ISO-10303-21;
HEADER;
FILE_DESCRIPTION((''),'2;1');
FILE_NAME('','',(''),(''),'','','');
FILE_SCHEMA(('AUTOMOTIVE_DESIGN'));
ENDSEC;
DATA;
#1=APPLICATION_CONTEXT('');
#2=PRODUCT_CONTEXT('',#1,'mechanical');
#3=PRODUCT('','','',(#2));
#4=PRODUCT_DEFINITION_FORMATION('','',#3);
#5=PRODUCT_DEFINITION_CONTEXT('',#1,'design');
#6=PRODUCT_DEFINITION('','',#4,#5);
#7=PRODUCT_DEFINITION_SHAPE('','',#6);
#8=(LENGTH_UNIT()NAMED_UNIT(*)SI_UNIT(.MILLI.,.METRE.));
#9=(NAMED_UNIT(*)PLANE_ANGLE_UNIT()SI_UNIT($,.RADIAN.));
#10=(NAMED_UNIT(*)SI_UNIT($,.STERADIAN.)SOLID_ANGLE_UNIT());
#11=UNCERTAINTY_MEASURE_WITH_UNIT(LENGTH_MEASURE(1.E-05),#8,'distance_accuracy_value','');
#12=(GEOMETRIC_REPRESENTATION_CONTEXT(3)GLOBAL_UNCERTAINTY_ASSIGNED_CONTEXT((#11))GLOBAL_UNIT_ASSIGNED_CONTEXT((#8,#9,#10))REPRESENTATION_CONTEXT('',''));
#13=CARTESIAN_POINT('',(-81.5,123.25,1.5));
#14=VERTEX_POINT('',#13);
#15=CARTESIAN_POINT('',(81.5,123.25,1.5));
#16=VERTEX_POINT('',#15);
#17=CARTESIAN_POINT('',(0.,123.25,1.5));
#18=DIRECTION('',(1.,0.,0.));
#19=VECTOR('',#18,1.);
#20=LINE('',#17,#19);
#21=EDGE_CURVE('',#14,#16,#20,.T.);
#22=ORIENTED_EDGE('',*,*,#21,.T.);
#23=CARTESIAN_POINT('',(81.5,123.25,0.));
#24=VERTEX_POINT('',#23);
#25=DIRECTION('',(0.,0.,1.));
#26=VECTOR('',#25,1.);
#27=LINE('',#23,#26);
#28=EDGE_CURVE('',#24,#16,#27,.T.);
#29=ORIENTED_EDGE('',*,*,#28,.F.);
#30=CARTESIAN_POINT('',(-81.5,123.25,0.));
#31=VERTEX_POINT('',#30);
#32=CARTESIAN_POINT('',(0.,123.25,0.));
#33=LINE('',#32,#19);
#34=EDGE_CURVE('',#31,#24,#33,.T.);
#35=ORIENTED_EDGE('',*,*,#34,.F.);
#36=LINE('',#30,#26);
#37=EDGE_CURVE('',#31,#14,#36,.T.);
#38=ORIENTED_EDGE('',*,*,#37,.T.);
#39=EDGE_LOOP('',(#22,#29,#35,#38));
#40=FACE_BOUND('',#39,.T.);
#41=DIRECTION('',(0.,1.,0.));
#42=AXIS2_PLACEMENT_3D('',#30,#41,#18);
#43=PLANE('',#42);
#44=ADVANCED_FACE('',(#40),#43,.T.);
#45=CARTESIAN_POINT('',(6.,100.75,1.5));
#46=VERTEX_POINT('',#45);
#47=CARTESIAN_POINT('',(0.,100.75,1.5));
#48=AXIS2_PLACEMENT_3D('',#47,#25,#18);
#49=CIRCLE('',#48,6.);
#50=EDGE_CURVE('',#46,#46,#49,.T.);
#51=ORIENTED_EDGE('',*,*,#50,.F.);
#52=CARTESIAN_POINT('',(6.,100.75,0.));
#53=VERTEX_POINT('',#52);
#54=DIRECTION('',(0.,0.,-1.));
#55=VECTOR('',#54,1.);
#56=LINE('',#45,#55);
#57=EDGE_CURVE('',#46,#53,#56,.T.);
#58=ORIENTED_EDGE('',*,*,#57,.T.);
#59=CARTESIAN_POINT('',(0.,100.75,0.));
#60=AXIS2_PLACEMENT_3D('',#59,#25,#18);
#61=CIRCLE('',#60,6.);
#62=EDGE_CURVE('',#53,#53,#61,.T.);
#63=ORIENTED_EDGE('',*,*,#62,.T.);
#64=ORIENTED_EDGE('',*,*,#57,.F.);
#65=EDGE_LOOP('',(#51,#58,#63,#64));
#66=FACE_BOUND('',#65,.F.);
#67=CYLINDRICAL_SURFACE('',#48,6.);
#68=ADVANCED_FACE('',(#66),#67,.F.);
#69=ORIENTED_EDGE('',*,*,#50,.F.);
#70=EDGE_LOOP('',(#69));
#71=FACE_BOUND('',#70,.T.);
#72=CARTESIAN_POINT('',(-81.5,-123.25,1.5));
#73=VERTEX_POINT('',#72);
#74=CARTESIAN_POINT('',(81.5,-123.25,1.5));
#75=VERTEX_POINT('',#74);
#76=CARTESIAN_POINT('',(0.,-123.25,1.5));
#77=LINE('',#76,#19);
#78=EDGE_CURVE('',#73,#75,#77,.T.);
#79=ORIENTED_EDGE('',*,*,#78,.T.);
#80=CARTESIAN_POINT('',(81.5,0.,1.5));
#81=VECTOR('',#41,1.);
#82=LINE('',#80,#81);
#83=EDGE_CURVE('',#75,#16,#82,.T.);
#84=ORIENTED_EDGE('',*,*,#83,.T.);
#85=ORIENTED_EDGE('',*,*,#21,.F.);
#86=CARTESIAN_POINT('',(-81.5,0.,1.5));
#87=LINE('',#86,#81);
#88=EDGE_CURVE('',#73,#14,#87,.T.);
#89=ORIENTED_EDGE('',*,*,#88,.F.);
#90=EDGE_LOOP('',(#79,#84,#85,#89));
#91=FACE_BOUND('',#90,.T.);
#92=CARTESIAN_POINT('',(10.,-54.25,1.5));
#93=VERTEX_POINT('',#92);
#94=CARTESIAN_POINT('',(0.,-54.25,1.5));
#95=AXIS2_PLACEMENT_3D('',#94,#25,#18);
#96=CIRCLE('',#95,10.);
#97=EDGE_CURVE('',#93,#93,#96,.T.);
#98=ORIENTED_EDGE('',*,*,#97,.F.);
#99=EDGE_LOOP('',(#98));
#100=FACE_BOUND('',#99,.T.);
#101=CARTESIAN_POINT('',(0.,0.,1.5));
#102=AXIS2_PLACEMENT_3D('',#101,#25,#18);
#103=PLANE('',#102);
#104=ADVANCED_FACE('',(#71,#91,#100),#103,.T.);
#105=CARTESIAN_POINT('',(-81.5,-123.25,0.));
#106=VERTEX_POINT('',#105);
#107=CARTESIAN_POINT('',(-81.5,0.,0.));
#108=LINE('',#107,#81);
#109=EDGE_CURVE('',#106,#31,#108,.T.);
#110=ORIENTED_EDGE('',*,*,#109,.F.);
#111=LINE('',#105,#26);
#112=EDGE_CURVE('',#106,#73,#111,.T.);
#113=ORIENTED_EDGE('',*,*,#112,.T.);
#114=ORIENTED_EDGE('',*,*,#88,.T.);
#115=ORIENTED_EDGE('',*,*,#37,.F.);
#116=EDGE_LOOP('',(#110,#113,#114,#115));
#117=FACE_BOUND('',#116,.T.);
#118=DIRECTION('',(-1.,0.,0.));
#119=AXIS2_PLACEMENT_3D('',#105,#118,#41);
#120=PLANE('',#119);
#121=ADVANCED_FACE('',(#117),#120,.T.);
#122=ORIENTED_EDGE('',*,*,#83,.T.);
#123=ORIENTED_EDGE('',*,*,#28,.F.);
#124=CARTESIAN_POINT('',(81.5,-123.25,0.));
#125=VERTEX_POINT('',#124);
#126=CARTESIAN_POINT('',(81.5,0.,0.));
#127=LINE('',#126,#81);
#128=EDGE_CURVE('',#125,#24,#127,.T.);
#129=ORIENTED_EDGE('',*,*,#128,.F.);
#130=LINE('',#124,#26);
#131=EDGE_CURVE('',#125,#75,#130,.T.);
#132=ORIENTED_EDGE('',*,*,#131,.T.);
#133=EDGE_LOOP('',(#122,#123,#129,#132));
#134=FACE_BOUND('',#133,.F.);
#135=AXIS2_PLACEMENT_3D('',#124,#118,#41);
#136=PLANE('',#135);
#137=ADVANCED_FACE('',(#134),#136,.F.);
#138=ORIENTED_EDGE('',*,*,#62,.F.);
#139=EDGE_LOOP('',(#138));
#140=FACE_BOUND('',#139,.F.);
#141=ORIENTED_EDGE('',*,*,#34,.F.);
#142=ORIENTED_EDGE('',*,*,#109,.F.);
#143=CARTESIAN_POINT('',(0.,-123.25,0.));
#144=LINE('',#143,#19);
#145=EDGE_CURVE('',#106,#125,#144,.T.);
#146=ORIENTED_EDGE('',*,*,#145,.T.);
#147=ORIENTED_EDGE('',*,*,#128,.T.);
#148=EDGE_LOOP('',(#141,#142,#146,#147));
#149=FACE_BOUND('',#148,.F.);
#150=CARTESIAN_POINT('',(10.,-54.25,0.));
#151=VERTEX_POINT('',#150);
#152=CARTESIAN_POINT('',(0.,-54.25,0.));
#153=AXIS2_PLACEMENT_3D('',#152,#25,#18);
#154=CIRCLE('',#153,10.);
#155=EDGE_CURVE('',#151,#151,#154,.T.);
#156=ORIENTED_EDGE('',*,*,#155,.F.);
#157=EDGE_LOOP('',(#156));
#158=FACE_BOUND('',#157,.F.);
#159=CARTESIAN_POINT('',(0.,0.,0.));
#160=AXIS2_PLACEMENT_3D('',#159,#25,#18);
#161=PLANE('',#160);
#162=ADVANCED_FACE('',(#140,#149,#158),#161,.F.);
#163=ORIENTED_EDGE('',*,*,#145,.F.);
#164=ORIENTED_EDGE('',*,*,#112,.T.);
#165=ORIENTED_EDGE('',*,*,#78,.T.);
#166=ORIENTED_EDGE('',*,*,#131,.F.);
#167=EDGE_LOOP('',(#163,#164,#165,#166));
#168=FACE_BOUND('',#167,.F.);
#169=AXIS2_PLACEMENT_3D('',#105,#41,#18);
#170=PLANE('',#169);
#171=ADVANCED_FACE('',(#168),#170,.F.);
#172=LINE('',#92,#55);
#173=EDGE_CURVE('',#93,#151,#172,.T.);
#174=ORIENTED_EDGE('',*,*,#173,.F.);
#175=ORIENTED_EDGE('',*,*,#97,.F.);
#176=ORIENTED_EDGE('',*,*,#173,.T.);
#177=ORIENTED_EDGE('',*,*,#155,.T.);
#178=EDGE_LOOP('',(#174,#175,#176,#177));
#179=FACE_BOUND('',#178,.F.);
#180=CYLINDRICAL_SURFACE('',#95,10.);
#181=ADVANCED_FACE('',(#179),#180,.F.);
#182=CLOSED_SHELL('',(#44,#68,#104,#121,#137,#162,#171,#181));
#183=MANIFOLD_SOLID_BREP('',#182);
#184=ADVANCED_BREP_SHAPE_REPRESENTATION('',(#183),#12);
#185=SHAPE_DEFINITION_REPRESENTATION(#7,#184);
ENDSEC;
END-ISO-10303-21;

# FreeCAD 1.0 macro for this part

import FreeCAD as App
import Part
import Sketcher


def add_polygon(sketch, points):
    """Adds a closed chain of lines whose ends are joined by coincident constraints."""
    first, n = sketch.GeometryCount, len(points)
    for a, b in zip(points, points[1:] + points[:1]):
        sketch.addGeometry(Part.LineSegment(App.Vector(*a, 0), App.Vector(*b, 0)), False)
    for i in range(n):
        sketch.addConstraint(Sketcher.Constraint("Coincident", first + i, 2, first + (i + 1) % n, 1))

doc = App.newDocument("Part")
params = doc.addObject("Spreadsheet::Sheet", "Params")
for row, (alias, value) in enumerate([
    ("sketch1_width", "163 mm"),
    ("sketch1_height", "246.5 mm"),
    ("pad1_length", "1.5 mm"),
    ("sketch2_diameter", "12 mm"),
    ("sketch2_diameter2", "20 mm"),
    ("pocket1_length", "1.5 mm"),
], start=1):
    params.set(f"A{row}", alias)
    params.set(f"B{row}", "=" + value)
    params.setAlias(f"B{row}", alias)

body = doc.addObject("PartDesign::Body", "Body")

# Sketch on XY plane
sketch1 = doc.addObject("Sketcher::SketchObject", "Sketch")
body.addObject(sketch1)
sketch1.AttachmentSupport = (doc.XY_Plane, [""])
sketch1.MapMode = "FlatFace"
add_polygon(sketch1, [(-81.5, 123.25), (-81.5, -123.25), (81.5, -123.25), (81.5, 123.25)])  # lines 0-3
sketch1.addConstraint([
    Sketcher.Constraint("Vertical", 0),
    Sketcher.Constraint("Horizontal", 1),
    Sketcher.Constraint("Vertical", 2),
    Sketcher.Constraint("Horizontal", 3),
    Sketcher.Constraint("Symmetric", 0, 2, 2, 2, -1, 1),
    Sketcher.Constraint("DistanceX", 1, 1, 1, 2, 163.0),
    Sketcher.Constraint("DistanceY", 0, 2, 0, 1, 246.5),
])
sketch1.setExpression("Constraints[9]", "Params.sketch1_width")
sketch1.setExpression("Constraints[10]", "Params.sketch1_height")
pad1 = doc.addObject("PartDesign::Pad", "Pad")
body.addObject(pad1)
pad1.Profile = sketch1
pad1.setExpression("Length", "Params.pad1_length")

# Sketch on XY plane
sketch2 = doc.addObject("Sketcher::SketchObject", "Sketch001")
body.addObject(sketch2)
sketch2.AttachmentSupport = (doc.XY_Plane, [""])
sketch2.MapMode = "FlatFace"
sketch2.AttachmentOffset = App.Placement(App.Vector(0, 0, 1.5), App.Rotation())
sketch2.addGeometry([
    Part.Circle(App.Vector(0, 100.75, 0), App.Vector(0, 0, 1), 6),
    Part.Circle(App.Vector(0, -54.25, 0), App.Vector(0, 0, 1), 10),
], False)
sketch2.addConstraint([
    Sketcher.Constraint("PointOnObject", 0, 3, -2),
    Sketcher.Constraint("PointOnObject", 1, 3, -2),
    Sketcher.Constraint("Diameter", 0, 12.0),
    Sketcher.Constraint("Diameter", 1, 20.0),
    Sketcher.Constraint("DistanceY", 1, 3, 0, 3, 155.0),
    Sketcher.Constraint("DistanceY", -1, 1, 0, 3, 100.75),
])
sketch2.setExpression("Constraints[2]", "Params.sketch2_diameter")
sketch2.setExpression("Constraints[3]", "Params.sketch2_diameter2")
pocket1 = doc.addObject("PartDesign::Pocket", "Pocket")
body.addObject(pocket1)
pocket1.Profile = sketch2
pocket1.setExpression("Length", "Params.pocket1_length")

doc.recompute()
